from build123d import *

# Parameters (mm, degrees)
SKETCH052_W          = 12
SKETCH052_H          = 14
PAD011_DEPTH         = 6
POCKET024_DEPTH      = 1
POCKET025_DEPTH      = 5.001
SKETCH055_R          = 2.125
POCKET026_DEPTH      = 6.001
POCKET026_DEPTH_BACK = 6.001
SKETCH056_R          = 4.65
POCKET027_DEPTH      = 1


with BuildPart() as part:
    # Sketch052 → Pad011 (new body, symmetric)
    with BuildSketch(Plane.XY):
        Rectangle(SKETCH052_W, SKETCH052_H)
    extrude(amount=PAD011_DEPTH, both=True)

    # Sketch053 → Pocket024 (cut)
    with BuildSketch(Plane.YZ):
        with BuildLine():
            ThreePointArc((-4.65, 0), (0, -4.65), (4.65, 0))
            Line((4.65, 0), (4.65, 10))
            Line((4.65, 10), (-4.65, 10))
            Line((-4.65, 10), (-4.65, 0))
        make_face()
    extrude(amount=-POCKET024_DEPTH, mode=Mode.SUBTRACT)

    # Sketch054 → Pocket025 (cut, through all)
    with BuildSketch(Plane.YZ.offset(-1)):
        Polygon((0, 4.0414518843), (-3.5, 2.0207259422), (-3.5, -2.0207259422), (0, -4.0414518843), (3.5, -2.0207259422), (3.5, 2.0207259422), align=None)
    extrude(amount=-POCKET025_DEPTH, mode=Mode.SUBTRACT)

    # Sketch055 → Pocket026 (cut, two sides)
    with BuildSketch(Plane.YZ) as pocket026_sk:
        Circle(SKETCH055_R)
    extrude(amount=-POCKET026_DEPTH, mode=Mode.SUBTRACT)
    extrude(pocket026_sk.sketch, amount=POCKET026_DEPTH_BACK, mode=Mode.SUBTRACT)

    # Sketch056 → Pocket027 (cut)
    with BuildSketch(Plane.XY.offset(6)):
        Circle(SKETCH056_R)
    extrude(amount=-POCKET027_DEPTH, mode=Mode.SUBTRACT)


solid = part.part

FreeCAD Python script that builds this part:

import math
import FreeCAD as App
import Part
import Sketcher

V = App.Vector
Q = App.Units.Quantity

doc = App.newDocument("Part")
params = doc.addObject("Spreadsheet::Sheet", "Params")
for row, (alias, value) in enumerate([
    ("sketch1_width", "12 mm"),
    ("sketch1_height", "14 mm"),
    ("pad1_length", "12 mm"),
    ("sketch2_height", "10 mm"),
    ("sketch2_radius", "4.65 mm"),
    ("pocket1_length", "1 mm"),
    ("sketch4_diameter", "4.25 mm"),
    ("sketch5_diameter", "9.3 mm"),
    ("pocket4_length", "1 mm"),
], start=1):
    params.set(f"A{row}", alias)
    params.set(f"B{row}", "=" + value)
    params.setAlias(f"B{row}", alias)

body = doc.addObject("PartDesign::Body", "Body")

sketch1 = doc.addObject("Sketcher::SketchObject", "Sketch")
body.addObject(sketch1)
sketch1.AttachmentSupport = (doc.XY_Plane, [""])
sketch1.MapMode = "FlatFace"
sketch1.addGeometry(Part.LineSegment(V(-6, 7, 0), V(-6, -7, 0)), False)
sketch1.addGeometry(Part.LineSegment(V(-6, -7, 0), V(6, -7, 0)), False)
sketch1.addGeometry(Part.LineSegment(V(6, -7, 0), V(6, 7, 0)), False)
sketch1.addGeometry(Part.LineSegment(V(6, 7, 0), V(-6, 7, 0)), False)
sketch1.addConstraint(Sketcher.Constraint("Coincident", 0, 2, 1, 1))
sketch1.addConstraint(Sketcher.Constraint("Coincident", 1, 2, 2, 1))
sketch1.addConstraint(Sketcher.Constraint("Coincident", 2, 2, 3, 1))
sketch1.addConstraint(Sketcher.Constraint("Coincident", 3, 2, 0, 1))
sketch1.addConstraint(Sketcher.Constraint("Vertical", 0))
sketch1.addConstraint(Sketcher.Constraint("Horizontal", 1))
sketch1.addConstraint(Sketcher.Constraint("Vertical", 2))
sketch1.addConstraint(Sketcher.Constraint("Horizontal", 3))
sketch1.addConstraint(Sketcher.Constraint("Symmetric", 0, 2, 2, 2, -1, 1))
sketch1.addConstraint(Sketcher.Constraint("DistanceX", 1, 1, 1, 2, 12.0))
sketch1.addConstraint(Sketcher.Constraint("DistanceY", 0, 2, 0, 1, 14.0))
sketch1.setExpression("Constraints[9]", "Params.sketch1_width")
sketch1.setExpression("Constraints[10]", "Params.sketch1_height")
pad1 = doc.addObject("PartDesign::Pad", "Pad")
body.addObject(pad1)
pad1.Profile = sketch1
pad1.setExpression("Length", "Params.pad1_length")
pad1.Midplane = True

sketch2 = doc.addObject("Sketcher::SketchObject", "Sketch001")
body.addObject(sketch2)
sketch2.AttachmentSupport = (doc.YZ_Plane, [""])
sketch2.MapMode = "FlatFace"
sketch2.addGeometry(Part.ArcOfCircle(Part.Circle(V(0, 0, 0), V(0, 0, 1), 4.65), math.radians(180), math.radians(360)), False)
sketch2.addGeometry(Part.LineSegment(V(4.65, 0, 0), V(4.65, 10, 0)), False)
sketch2.addGeometry(Part.LineSegment(V(4.65, 10, 0), V(-4.65, 10, 0)), False)
sketch2.addGeometry(Part.LineSegment(V(-4.65, 10, 0), V(-4.65, 0, 0)), False)
sketch2.addConstraint(Sketcher.Constraint("Tangent", 0, 2, 1, 1))
sketch2.addConstraint(Sketcher.Constraint("Coincident", 1, 2, 2, 1))
sketch2.addConstraint(Sketcher.Constraint("Coincident", 2, 2, 3, 1))
sketch2.addConstraint(Sketcher.Constraint("Tangent", 3, 2, 0, 1))
sketch2.addConstraint(Sketcher.Constraint("Vertical", 1))
sketch2.addConstraint(Sketcher.Constraint("Horizontal", 2))
sketch2.addConstraint(Sketcher.Constraint("Vertical", 3))
sketch2.addConstraint(Sketcher.Constraint("Coincident", 0, 3, -1, 1))
sketch2.addConstraint(Sketcher.Constraint("DistanceY", 1, 1, 1, 2, 10.0))
sketch2.addConstraint(Sketcher.Constraint("Radius", 0, 4.65))
sketch2.setExpression("Constraints[8]", "Params.sketch2_height")
sketch2.setExpression("Constraints[9]", "Params.sketch2_radius")
pocket1 = doc.addObject("PartDesign::Pocket", "Pocket")
body.addObject(pocket1)
pocket1.Profile = sketch2
pocket1.setExpression("Length", "Params.pocket1_length")

sketch3 = doc.addObject("Sketcher::SketchObject", "Sketch002")
body.addObject(sketch3)
sketch3.AttachmentSupport = (doc.YZ_Plane, [""])
sketch3.MapMode = "FlatFace"
sketch3.AttachmentOffset = App.Placement(V(0, 0, -1), App.Rotation())
sketch3.addGeometry(Part.LineSegment(V(0, 4.041452, 0), V(-3.5, 2.020726, 0)), False)
sketch3.addGeometry(Part.LineSegment(V(-3.5, 2.020726, 0), V(-3.5, -2.020726, 0)), False)
sketch3.addGeometry(Part.LineSegment(V(-3.5, -2.020726, 0), V(0, -4.041452, 0)), False)
sketch3.addGeometry(Part.LineSegment(V(0, -4.041452, 0), V(3.5, -2.020726, 0)), False)
sketch3.addGeometry(Part.LineSegment(V(3.5, -2.020726, 0), V(3.5, 2.020726, 0)), False)
sketch3.addGeometry(Part.LineSegment(V(3.5, 2.020726, 0), V(0, 4.041452, 0)), False)
sketch3.addConstraint(Sketcher.Constraint("Coincident", 0, 2, 1, 1))
sketch3.addConstraint(Sketcher.Constraint("Coincident", 1, 2, 2, 1))
sketch3.addConstraint(Sketcher.Constraint("Coincident", 2, 2, 3, 1))
sketch3.addConstraint(Sketcher.Constraint("Coincident", 3, 2, 4, 1))
sketch3.addConstraint(Sketcher.Constraint("Coincident", 4, 2, 5, 1))
sketch3.addConstraint(Sketcher.Constraint("Coincident", 5, 2, 0, 1))
sketch3.addConstraint(Sketcher.Constraint("Vertical", 1))
sketch3.addConstraint(Sketcher.Constraint("Vertical", 4))
sketch3.addConstraint(Sketcher.Constraint("Symmetric", 0, 2, 3, 2, -1, 1))
sketch3.addConstraint(Sketcher.Constraint("Symmetric", 2, 2, 5, 2, -1, 1))
sketch3.addConstraint(Sketcher.Constraint("PointOnObject", 2, 2, -2))
sketch3.addConstraint(Sketcher.Constraint("Parallel", 2, 5))
sketch3.addConstraint(Sketcher.Constraint("Horizontal", 1, 2, 3, 2))
sketch3.addConstraint(Sketcher.Constraint("Angle", 0, Q("-150 deg")))
sketch3.addConstraint(Sketcher.Constraint("DistanceX", 1, 2, 3, 2, 7.0))
sketch3.addConstraint(Sketcher.Constraint("DistanceY", 1, 2, 1, 1, 4.041452))
pocket2 = doc.addObject("PartDesign::Pocket", "Pocket001")
body.addObject(pocket2)
pocket2.Profile = sketch3
pocket2.Type = "ThroughAll"

sketch4 = doc.addObject("Sketcher::SketchObject", "Sketch003")
body.addObject(sketch4)
sketch4.AttachmentSupport = (doc.YZ_Plane, [""])
sketch4.MapMode = "FlatFace"
sketch4.addGeometry(Part.Circle(V(0, 0, 0), V(0, 0, 1), 2.125), False)
sketch4.addConstraint(Sketcher.Constraint("Coincident", 0, 3, -1, 1))
sketch4.addConstraint(Sketcher.Constraint("Diameter", 0, 4.25))
sketch4.setExpression("Constraints[1]", "Params.sketch4_diameter")
pocket3 = doc.addObject("PartDesign::Pocket", "Pocket002")
body.addObject(pocket3)
pocket3.Profile = sketch4
pocket3.Type = "ThroughAll"
pocket3.Midplane = True

sketch5 = doc.addObject("Sketcher::SketchObject", "Sketch004")
body.addObject(sketch5)
sketch5.AttachmentSupport = (doc.XY_Plane, [""])
sketch5.MapMode = "FlatFace"
sketch5.AttachmentOffset = App.Placement(V(0, 0, 6), App.Rotation())
sketch5.addGeometry(Part.Circle(V(0, 0, 0), V(0, 0, 1), 4.65), False)
sketch5.addConstraint(Sketcher.Constraint("Coincident", 0, 3, -1, 1))
sketch5.addConstraint(Sketcher.Constraint("Diameter", 0, 9.3))
sketch5.setExpression("Constraints[1]", "Params.sketch5_diameter")
pocket4 = doc.addObject("PartDesign::Pocket", "Pocket003")
body.addObject(pocket4)
pocket4.Profile = sketch5
pocket4.setExpression("Length", "Params.pocket4_length")

doc.recompute()
